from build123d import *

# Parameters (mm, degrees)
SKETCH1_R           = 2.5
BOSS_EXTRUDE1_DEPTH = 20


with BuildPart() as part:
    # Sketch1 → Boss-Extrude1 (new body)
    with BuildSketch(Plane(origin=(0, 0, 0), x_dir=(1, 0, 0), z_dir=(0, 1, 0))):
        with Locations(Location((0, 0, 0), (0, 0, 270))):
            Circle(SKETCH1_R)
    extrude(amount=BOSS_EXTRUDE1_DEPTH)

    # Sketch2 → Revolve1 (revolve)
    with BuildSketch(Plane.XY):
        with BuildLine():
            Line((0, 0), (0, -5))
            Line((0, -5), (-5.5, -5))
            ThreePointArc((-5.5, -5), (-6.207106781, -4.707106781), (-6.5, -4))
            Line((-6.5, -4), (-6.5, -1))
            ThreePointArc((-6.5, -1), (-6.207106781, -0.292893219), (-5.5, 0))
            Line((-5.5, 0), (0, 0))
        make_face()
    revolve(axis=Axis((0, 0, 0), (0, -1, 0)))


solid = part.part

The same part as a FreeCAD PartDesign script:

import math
import FreeCAD as App
import Part
import Sketcher
from FreeCAD import Vector
Q = App.Units.Quantity

doc = App.newDocument("Part")
body = doc.addObject("PartDesign::Body", "Body")

# Sketch on XZ plane
sketch1 = body.newObject("Sketcher::SketchObject", "Sketch")
sketch1.AttachmentSupport = (doc.getObject("XZ_Plane"), [""])
sketch1.MapMode = "FlatFace"
sketch1.addGeometry(Part.Circle(Vector(0, 0, 0), Vector(0, 0, 1), 2.5), False)
sketch1.addConstraint(Sketcher.Constraint("Coincident", 0, 3, -1, 1))
sketch1.addConstraint(Sketcher.Constraint("Diameter", 0, Q("5 mm")))
pad1 = body.newObject("PartDesign::Pad", "Pad")
pad1.Profile = sketch1
pad1.Length = 20
pad1.Reversed = True

# Sketch on XY plane
sketch2 = body.newObject("Sketcher::SketchObject", "Sketch001")
sketch2.AttachmentSupport = (doc.getObject("XY_Plane"), [""])
sketch2.MapMode = "FlatFace"
sketch2.addGeometry(Part.LineSegment(Vector(0, -5, 0), Vector(0, 0, 0)), False)
sketch2.addGeometry(Part.LineSegment(Vector(0, 0, 0), Vector(-5.5, 0, 0)), False)
sketch2.addGeometry(Part.ArcOfCircle(Part.Circle(Vector(-5.5, -1, 0), Vector(0, 0, 1), 1), math.radians(90), math.radians(180)), False)
sketch2.addGeometry(Part.LineSegment(Vector(-6.5, -1, 0), Vector(-6.5, -4, 0)), False)
sketch2.addGeometry(Part.ArcOfCircle(Part.Circle(Vector(-5.5, -4, 0), Vector(0, 0, 1), 1), math.radians(-180), math.radians(-90)), False)
sketch2.addGeometry(Part.LineSegment(Vector(-5.5, -5, 0), Vector(0, -5, 0)), False)
sketch2.addConstraint(Sketcher.Constraint("Coincident", 0, 2, 1, 1))
sketch2.addConstraint(Sketcher.Constraint("Tangent", 1, 2, 2, 1))
sketch2.addConstraint(Sketcher.Constraint("Tangent", 2, 2, 3, 1))
sketch2.addConstraint(Sketcher.Constraint("Tangent", 3, 2, 4, 1))
sketch2.addConstraint(Sketcher.Constraint("Tangent", 4, 2, 5, 1))
sketch2.addConstraint(Sketcher.Constraint("Coincident", 5, 2, 0, 1))
sketch2.addConstraint(Sketcher.Constraint("Vertical", 0))
sketch2.addConstraint(Sketcher.Constraint("Horizontal", 1))
sketch2.addConstraint(Sketcher.Constraint("Vertical", 3))
sketch2.addConstraint(Sketcher.Constraint("Horizontal", 5))
sketch2.addConstraint(Sketcher.Constraint("Coincident", 0, 2, -1, 1))
sketch2.addConstraint(Sketcher.Constraint("Equal", 2, 4))
sketch2.addConstraint(Sketcher.Constraint("Radius", 2, Q("1 mm")))
sketch2.addConstraint(Sketcher.Constraint("DistanceY", 0, 1, 0, 2, Q("5 mm")))
sketch2.addConstraint(Sketcher.Constraint("DistanceX", 1, 2, 1, 1, Q("5.5 mm")))
revolution = body.newObject("PartDesign::Revolution", "Revolution")
revolution.Profile = sketch2
revolution.ReferenceAxis = (sketch2, ["V_Axis"])
revolution.Angle = 360

doc.recompute()
